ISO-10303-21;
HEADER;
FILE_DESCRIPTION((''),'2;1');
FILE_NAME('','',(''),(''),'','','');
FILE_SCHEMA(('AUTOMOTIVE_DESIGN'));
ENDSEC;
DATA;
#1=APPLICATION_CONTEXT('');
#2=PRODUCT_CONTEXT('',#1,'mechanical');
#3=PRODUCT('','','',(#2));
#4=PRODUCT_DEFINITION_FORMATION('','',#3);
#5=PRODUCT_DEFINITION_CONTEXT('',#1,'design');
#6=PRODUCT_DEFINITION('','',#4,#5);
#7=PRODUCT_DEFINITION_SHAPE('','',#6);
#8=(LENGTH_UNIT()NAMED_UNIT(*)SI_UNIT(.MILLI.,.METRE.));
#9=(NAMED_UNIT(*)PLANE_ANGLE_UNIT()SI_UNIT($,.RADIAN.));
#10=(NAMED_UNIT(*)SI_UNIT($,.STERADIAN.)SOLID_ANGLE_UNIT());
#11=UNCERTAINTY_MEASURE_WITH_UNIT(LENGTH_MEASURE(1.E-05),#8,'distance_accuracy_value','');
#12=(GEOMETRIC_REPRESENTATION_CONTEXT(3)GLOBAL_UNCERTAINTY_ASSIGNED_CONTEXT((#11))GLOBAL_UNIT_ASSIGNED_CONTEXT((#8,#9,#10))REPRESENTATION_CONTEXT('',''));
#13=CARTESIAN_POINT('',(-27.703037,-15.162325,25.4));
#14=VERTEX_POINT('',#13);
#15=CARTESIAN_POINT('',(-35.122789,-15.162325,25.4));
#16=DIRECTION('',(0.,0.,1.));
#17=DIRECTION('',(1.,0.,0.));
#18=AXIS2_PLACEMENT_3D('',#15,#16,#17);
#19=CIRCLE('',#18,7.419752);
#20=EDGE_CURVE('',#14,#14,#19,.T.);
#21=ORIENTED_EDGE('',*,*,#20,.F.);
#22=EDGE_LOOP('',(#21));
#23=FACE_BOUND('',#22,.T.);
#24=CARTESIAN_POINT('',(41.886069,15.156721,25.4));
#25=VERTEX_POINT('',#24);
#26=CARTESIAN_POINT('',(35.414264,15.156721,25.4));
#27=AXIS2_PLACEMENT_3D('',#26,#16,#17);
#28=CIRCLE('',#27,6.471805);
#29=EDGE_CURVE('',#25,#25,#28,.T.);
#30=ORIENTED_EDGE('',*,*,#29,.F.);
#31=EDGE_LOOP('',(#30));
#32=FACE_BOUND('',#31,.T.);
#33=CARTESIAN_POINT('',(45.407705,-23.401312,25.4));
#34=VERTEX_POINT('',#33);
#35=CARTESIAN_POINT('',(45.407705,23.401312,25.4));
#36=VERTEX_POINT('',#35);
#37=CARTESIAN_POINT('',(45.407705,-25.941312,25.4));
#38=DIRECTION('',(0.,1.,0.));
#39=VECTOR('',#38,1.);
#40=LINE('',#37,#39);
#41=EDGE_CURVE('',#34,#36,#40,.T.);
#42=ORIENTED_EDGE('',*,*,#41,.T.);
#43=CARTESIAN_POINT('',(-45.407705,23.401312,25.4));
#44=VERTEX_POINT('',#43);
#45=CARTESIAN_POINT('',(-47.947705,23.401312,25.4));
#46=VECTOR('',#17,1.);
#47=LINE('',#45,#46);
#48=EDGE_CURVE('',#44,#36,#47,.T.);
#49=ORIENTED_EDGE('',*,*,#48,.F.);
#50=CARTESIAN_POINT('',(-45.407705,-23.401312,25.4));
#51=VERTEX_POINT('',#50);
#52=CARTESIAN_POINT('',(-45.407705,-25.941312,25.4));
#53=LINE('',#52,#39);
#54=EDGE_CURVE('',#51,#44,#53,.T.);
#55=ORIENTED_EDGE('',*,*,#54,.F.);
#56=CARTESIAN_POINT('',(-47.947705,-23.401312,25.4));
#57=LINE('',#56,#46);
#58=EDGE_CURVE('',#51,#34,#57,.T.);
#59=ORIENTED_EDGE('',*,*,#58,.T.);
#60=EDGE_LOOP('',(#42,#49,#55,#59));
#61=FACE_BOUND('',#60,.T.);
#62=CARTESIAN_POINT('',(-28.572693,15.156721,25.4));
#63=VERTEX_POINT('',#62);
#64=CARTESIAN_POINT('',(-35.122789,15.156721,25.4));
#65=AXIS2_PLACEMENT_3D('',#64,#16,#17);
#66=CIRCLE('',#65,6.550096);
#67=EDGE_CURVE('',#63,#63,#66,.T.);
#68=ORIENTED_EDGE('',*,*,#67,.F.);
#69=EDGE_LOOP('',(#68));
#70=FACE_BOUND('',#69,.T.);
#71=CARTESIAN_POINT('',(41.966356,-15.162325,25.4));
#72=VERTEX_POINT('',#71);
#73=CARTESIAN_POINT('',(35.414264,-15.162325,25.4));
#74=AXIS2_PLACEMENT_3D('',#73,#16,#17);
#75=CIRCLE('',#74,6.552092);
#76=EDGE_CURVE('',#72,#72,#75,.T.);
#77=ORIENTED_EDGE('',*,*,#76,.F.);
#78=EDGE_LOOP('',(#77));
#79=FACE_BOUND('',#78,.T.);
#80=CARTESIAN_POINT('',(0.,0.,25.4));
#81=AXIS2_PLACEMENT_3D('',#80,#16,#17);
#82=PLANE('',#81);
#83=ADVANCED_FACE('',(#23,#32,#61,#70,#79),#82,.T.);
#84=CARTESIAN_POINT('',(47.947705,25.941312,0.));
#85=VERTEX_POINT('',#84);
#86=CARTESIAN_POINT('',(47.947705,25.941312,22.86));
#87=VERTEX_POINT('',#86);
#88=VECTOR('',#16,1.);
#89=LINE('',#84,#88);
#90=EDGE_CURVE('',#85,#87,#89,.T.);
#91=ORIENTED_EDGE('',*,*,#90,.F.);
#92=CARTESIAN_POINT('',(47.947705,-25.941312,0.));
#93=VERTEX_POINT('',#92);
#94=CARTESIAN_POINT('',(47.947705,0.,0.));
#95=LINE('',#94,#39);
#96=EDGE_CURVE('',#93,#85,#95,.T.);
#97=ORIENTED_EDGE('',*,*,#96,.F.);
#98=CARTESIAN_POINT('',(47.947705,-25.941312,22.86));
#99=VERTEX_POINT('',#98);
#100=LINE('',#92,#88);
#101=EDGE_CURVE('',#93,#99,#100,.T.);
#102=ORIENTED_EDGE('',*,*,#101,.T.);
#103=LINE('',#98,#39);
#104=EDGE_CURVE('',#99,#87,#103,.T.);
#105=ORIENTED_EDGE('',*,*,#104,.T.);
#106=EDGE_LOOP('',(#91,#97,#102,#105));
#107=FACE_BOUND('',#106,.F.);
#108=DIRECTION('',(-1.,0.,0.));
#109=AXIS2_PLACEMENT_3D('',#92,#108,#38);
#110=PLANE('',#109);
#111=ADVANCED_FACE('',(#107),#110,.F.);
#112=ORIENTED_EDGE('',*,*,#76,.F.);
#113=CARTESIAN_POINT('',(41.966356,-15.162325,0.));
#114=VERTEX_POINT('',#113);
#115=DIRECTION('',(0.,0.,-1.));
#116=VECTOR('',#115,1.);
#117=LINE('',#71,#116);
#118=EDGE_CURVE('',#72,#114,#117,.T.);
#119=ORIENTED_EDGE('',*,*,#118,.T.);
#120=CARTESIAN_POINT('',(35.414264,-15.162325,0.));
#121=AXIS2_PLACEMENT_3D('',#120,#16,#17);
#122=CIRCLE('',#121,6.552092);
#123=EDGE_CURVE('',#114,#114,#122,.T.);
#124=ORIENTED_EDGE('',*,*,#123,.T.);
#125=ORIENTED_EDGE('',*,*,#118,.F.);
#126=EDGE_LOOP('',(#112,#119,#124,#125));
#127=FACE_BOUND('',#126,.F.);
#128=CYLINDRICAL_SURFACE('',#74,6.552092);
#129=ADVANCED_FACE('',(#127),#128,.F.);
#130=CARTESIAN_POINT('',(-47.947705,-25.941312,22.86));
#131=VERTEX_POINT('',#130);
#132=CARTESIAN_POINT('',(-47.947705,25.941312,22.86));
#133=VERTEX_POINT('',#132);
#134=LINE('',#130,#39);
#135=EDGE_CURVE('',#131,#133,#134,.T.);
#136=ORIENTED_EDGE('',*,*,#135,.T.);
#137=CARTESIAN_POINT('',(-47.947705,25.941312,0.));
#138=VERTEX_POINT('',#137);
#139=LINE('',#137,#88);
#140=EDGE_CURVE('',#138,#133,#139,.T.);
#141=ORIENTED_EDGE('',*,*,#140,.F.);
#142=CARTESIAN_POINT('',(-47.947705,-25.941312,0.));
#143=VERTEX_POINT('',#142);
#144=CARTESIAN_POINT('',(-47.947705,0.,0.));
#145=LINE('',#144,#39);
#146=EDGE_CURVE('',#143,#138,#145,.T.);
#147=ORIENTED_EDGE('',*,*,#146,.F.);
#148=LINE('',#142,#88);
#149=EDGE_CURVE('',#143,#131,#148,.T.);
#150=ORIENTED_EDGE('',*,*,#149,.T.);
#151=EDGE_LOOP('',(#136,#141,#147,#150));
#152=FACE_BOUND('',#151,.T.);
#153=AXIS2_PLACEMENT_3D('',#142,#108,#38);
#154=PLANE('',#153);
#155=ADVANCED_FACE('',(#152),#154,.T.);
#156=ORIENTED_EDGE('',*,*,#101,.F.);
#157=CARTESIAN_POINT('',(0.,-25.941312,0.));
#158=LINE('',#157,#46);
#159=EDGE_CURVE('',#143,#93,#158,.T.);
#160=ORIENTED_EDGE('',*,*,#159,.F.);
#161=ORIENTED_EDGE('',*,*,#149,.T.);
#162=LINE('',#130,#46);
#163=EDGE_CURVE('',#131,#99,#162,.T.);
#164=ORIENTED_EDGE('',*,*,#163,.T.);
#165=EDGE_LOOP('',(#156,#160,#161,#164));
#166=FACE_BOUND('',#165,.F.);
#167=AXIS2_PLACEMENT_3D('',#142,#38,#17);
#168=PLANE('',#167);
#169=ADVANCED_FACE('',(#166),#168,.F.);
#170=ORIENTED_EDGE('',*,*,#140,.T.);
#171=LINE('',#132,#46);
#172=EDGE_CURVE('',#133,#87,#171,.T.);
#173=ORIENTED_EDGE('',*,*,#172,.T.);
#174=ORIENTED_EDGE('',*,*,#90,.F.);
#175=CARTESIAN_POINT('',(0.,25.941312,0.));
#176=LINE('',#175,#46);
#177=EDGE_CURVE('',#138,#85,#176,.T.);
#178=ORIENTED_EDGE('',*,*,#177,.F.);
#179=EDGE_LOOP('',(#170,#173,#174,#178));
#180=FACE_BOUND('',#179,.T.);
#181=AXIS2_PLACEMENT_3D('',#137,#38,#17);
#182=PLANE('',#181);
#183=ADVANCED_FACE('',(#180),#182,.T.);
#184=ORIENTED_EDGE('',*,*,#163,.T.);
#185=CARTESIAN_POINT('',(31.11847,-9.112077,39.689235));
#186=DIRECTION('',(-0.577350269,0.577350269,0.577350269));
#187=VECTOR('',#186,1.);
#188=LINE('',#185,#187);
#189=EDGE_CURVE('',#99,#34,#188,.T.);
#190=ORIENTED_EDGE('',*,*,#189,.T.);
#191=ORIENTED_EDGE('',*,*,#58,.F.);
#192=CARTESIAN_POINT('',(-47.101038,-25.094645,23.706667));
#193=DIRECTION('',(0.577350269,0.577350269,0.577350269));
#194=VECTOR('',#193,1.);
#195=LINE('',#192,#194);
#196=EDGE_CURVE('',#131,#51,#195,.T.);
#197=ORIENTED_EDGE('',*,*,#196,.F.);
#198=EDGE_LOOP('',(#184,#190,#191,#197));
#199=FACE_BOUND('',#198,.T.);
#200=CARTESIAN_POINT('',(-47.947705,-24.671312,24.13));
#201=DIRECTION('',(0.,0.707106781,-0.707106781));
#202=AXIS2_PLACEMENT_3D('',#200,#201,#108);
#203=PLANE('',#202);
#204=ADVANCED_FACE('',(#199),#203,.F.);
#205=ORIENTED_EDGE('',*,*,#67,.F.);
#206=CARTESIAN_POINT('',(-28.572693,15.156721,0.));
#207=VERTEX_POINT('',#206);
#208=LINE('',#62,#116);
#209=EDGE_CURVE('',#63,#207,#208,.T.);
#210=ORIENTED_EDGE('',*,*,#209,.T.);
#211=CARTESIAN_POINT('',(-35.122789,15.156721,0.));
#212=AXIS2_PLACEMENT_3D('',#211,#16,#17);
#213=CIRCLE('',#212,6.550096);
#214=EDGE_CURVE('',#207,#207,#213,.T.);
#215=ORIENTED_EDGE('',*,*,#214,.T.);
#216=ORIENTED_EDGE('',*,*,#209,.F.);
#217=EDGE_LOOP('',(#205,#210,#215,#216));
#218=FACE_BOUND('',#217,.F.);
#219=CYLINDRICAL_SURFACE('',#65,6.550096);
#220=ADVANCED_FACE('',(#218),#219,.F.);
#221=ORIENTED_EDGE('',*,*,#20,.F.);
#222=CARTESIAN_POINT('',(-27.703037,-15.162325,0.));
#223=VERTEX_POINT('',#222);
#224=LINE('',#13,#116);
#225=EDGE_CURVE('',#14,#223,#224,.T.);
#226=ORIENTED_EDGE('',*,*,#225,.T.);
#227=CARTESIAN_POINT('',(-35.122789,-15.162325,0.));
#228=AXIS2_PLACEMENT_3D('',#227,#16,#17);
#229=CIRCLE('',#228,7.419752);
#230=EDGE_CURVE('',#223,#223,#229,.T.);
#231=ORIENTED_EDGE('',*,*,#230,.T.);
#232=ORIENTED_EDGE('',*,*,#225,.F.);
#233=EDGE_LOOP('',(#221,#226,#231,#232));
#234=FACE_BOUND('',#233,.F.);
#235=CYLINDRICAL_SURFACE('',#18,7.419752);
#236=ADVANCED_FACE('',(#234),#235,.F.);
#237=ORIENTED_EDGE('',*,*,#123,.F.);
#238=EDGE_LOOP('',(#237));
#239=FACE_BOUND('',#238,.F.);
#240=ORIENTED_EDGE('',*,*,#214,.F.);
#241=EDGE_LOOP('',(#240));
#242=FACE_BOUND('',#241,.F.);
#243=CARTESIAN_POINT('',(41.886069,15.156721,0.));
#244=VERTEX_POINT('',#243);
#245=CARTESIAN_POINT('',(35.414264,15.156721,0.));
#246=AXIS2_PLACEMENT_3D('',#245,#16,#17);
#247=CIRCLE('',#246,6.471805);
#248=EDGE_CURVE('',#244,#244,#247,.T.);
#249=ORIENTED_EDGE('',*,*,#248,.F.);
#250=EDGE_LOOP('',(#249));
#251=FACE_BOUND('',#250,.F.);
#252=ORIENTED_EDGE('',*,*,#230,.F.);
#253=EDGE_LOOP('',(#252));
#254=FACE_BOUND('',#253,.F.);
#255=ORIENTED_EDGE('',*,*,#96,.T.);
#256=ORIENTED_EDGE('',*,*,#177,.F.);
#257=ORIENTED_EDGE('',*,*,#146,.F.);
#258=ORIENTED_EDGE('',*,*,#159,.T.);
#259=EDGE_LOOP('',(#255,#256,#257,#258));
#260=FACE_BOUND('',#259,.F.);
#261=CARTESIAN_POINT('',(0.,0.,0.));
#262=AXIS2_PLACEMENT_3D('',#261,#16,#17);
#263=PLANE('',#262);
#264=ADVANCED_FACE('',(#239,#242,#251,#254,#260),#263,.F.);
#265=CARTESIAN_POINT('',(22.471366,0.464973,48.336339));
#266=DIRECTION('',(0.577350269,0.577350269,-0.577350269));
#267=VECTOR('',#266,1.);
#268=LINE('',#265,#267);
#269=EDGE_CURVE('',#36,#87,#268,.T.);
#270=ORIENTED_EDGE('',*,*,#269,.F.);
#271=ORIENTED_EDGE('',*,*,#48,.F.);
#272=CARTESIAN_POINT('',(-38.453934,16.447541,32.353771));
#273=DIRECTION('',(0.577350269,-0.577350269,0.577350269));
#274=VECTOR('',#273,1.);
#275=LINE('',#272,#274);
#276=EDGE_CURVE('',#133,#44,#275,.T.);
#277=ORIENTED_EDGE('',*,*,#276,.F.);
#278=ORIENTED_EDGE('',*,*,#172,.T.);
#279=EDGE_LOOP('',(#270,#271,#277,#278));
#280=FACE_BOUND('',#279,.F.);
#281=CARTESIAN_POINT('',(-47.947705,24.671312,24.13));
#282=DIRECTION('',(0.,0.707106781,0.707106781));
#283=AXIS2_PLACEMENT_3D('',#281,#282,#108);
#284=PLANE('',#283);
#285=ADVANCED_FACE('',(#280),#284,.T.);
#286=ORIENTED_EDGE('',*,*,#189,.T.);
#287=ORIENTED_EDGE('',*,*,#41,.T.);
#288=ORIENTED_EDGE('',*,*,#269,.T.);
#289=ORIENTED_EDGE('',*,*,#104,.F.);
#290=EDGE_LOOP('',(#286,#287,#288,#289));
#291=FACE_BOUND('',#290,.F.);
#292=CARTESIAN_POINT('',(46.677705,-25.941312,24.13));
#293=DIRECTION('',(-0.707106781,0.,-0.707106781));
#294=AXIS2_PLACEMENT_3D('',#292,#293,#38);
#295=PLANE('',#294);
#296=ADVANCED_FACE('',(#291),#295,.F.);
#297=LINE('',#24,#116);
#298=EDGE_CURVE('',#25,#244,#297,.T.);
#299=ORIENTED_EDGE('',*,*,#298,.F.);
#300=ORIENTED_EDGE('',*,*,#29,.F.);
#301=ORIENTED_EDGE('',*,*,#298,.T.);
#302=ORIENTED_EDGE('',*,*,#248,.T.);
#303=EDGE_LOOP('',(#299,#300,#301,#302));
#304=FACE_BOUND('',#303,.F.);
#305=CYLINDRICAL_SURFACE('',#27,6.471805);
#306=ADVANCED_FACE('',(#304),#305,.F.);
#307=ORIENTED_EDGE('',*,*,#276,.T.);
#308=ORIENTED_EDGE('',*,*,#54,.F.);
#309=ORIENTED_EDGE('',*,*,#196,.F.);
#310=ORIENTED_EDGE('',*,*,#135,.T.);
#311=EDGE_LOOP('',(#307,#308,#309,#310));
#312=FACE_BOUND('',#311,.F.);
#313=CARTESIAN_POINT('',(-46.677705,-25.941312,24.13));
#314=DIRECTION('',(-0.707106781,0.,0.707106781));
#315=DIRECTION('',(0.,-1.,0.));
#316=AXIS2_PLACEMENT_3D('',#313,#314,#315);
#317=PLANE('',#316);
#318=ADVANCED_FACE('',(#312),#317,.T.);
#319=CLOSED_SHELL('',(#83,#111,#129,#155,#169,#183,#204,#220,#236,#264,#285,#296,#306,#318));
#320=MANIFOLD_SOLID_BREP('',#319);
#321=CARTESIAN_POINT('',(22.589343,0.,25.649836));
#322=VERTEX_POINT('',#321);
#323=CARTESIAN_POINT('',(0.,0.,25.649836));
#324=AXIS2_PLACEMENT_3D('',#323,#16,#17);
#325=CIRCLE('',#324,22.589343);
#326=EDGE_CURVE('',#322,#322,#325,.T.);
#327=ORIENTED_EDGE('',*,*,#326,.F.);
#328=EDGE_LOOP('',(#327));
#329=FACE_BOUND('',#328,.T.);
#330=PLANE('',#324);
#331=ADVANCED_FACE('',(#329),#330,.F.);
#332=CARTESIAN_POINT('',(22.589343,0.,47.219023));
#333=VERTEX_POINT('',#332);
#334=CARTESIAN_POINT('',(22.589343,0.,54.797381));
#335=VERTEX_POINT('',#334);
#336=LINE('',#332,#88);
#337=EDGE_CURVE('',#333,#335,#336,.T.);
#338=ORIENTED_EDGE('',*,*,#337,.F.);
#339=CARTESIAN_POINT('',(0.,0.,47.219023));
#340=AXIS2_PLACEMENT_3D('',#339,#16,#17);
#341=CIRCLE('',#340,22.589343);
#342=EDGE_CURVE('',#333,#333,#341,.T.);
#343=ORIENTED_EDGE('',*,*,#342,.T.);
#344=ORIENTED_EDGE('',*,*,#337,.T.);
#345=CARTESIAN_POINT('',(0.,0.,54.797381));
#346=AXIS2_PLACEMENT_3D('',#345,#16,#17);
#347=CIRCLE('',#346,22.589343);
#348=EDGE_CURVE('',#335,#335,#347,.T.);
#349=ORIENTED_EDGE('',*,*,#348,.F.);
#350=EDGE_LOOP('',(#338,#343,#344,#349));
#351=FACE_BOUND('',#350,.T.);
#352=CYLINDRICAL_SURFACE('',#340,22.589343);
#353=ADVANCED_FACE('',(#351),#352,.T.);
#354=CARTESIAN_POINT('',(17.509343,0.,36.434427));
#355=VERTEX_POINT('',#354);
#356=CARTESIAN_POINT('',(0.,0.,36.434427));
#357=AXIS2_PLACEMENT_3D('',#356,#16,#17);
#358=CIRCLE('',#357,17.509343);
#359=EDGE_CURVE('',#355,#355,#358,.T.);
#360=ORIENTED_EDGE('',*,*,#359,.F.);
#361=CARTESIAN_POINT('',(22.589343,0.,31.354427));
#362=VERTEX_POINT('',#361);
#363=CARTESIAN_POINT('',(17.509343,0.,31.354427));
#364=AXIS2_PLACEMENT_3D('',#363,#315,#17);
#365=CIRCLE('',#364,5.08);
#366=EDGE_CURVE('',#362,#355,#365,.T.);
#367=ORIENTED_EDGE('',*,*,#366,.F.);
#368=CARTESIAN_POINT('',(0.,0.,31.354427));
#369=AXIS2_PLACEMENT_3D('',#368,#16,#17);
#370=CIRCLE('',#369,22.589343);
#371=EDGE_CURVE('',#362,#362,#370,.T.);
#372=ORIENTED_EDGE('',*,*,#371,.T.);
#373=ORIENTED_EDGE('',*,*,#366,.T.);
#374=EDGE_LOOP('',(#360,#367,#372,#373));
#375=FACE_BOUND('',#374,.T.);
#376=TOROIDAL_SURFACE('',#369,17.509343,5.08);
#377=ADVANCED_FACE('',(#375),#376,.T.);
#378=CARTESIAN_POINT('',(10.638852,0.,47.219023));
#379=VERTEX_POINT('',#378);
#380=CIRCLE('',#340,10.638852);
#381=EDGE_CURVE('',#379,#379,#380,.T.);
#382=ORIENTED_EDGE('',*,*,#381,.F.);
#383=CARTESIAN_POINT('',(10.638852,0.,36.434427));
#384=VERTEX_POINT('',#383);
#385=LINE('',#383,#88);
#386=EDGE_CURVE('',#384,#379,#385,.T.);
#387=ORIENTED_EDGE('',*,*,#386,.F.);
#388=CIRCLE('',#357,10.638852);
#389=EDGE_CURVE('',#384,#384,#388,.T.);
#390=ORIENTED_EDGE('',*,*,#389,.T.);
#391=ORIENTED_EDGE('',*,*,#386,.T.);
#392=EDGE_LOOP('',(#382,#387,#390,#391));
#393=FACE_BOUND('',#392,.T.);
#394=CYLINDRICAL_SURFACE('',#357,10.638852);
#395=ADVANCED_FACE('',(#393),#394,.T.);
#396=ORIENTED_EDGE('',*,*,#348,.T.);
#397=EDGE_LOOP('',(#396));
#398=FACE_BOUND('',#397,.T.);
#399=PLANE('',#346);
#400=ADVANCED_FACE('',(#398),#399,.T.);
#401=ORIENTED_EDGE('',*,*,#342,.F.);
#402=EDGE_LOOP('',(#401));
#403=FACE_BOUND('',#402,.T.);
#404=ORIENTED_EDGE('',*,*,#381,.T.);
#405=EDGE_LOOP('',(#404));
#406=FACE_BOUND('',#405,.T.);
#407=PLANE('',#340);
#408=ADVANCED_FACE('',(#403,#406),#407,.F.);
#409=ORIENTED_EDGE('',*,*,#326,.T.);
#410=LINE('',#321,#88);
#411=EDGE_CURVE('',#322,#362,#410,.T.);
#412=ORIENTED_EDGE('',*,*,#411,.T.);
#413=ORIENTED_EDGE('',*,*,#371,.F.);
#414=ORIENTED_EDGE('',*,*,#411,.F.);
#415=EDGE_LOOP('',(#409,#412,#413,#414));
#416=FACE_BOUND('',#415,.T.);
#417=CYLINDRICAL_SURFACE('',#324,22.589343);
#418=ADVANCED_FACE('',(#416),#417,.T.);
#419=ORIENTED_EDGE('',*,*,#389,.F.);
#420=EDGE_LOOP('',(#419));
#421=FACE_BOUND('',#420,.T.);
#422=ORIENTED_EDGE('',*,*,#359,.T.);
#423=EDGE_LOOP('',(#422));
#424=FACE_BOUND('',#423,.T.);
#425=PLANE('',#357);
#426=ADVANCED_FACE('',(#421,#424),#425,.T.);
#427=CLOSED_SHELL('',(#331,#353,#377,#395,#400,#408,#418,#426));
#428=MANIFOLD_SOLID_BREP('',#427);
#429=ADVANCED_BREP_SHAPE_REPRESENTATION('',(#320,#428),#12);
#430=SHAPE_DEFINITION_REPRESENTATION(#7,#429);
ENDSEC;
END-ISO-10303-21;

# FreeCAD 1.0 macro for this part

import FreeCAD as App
import Part
import Sketcher
from FreeCAD import Vector
Q = App.Units.Quantity


def edges_at(feature, points):
    """Names of the edges that pass closest to the given points."""
    edges = feature.Shape.Edges
    near = lambda p: min(range(len(edges)), key=lambda i: edges[i].distToShape(Part.Vertex(*p))[0])
    return sorted({f"Edge{near(p) + 1}" for p in points})


def add_polygon(sketch, points):
    """Adds a closed chain of lines whose ends are joined by coincident constraints."""
    first, n = sketch.GeometryCount, len(points)
    for a, b in zip(points, points[1:] + points[:1]):
        sketch.addGeometry(Part.LineSegment(App.Vector(*a, 0), App.Vector(*b, 0)), False)
    for i in range(n):
        sketch.addConstraint(Sketcher.Constraint("Coincident", first + i, 2, first + (i + 1) % n, 1))

doc = App.newDocument("Part")
body = doc.addObject("PartDesign::Body", "Body")

sketch1 = doc.addObject("Sketcher::SketchObject", "Sketch")
body.addObject(sketch1)
sketch1.AttachmentSupport = (doc.XY_Plane, [""])
sketch1.MapMode = "FlatFace"
add_polygon(sketch1, [(-48, 26), (-48, -26), (48, -26), (48, 26)])
sketch1.addConstraint(Sketcher.Constraint("Vertical", 0))
sketch1.addConstraint(Sketcher.Constraint("Horizontal", 1))
sketch1.addConstraint(Sketcher.Constraint("Vertical", 2))
sketch1.addConstraint(Sketcher.Constraint("Horizontal", 3))
sketch1.addConstraint(Sketcher.Constraint("Symmetric", 0, 2, 2, 2, -1, 1))
sketch1.addConstraint(Sketcher.Constraint("DistanceX", 1, 1, 1, 2, Q("95.89541 mm")))
sketch1.addConstraint(Sketcher.Constraint("DistanceY", 0, 2, 0, 1, Q("51.882624 mm")))
pad1 = doc.addObject("PartDesign::Pad", "Pad")
body.addObject(pad1)
pad1.Profile = sketch1
pad1.Length = Q("1 in")

sketch2 = doc.addObject("Sketcher::SketchObject", "Sketch001")
body.addObject(sketch2)
sketch2.AttachmentSupport = (doc.XY_Plane, [""])
sketch2.MapMode = "FlatFace"
sketch2.AttachmentOffset = App.Placement(Vector(0, 0, 1 * 25.4), App.Rotation())
sketch2.addGeometry(Part.Circle(Vector(-35, 15, 0), Vector(0, 0, 1), 7), False)
sketch2.addGeometry(Part.Circle(Vector(35, 15, 0), Vector(0, 0, 1), 6), False)
sketch2.addGeometry(Part.Circle(Vector(35, -15, 0), Vector(0, 0, 1), 7), False)
sketch2.addGeometry(Part.Circle(Vector(-35, -15, 0), Vector(0, 0, 1), 7), False)
sketch2.addConstraint(Sketcher.Constraint("Horizontal", 0, 3, 1, 3))
sketch2.addConstraint(Sketcher.Constraint("Horizontal", 2, 3, 3, 3))
sketch2.addConstraint(Sketcher.Constraint("Vertical", 1, 3, 2, 3))
sketch2.addConstraint(Sketcher.Constraint("Vertical", 0, 3, 3, 3))
sketch2.addConstraint(Sketcher.Constraint("Diameter", 1, Q("12.94361 mm")))
sketch2.addConstraint(Sketcher.Constraint("Diameter", 0, Q("13.100192 mm")))
sketch2.addConstraint(Sketcher.Constraint("Diameter", 2, Q("13.104184 mm")))
sketch2.addConstraint(Sketcher.Constraint("Diameter", 3, Q("14.839504 mm")))
sketch2.addConstraint(Sketcher.Constraint("DistanceX", 0, 3, -1, 1, Q("35.122789 mm")))
sketch2.addConstraint(Sketcher.Constraint("DistanceY", -1, 1, 0, 3, Q("15.156721 mm")))
sketch2.addConstraint(Sketcher.Constraint("DistanceX", -1, 1, 1, 3, Q("35.414264 mm")))
sketch2.addConstraint(Sketcher.Constraint("DistanceY", 2, 3, -1, 1, Q("15.162325 mm")))
pocket1 = doc.addObject("PartDesign::Pocket", "Pocket")
body.addObject(pocket1)
pocket1.Profile = sketch2
pocket1.Length = Q("1 in")
doc.recompute()

chamfer = doc.addObject("PartDesign::Chamfer", "Chamfer")
body.addObject(chamfer)
chamfer.Base = (pocket1, edges_at(pocket1, [
    (0, -25.941, 25.4),
    (-47.948, 0, 25.4),
    (47.948, 0, 25.4),
    (0, 25.941, 25.4),
]))
chamfer.Size = Q("0.1 in")
body2 = doc.addObject("PartDesign::Body", "Body001")

sketch3 = doc.addObject("Sketcher::SketchObject", "Sketch002")
body2.addObject(sketch3)
sketch3.AttachmentSupport = (doc.getObject("XZ_Plane001"), [""])
sketch3.MapMode = "FlatFace"
add_polygon(sketch3, [(0, 55), (0, 26), (23, 26), (23, 36), (11, 36), (11, 47), (23, 47), (23, 55)])
sketch3.addConstraint(Sketcher.Constraint("Vertical", 0))
sketch3.addConstraint(Sketcher.Constraint("Horizontal", 1))
sketch3.addConstraint(Sketcher.Constraint("Vertical", 2))
sketch3.addConstraint(Sketcher.Constraint("Horizontal", 3))
sketch3.addConstraint(Sketcher.Constraint("Vertical", 4))
sketch3.addConstraint(Sketcher.Constraint("Horizontal", 5))
sketch3.addConstraint(Sketcher.Constraint("Vertical", 6))
sketch3.addConstraint(Sketcher.Constraint("Horizontal", 7))
sketch3.addConstraint(Sketcher.Constraint("PointOnObject", 0, 2, -2))
sketch3.addConstraint(Sketcher.Constraint("Vertical", 2, 2, 5, 2))
sketch3.addConstraint(Sketcher.Constraint("DistanceX", 3, 2, 3, 1, Q("11.950491 mm")))
sketch3.addConstraint(Sketcher.Constraint("DistanceY", 2, 1, 2, 2, Q("10.784591 mm")))
sketch3.addConstraint(Sketcher.Constraint("DistanceY", 6, 1, 6, 2, Q("7.578358 mm")))
sketch3.addConstraint(Sketcher.Constraint("DistanceX", 1, 1, 1, 2, Q("22.589343 mm")))
sketch3.addConstraint(Sketcher.Constraint("DistanceY", 0, 2, 0, 1, Q("29.147545 mm")))
sketch3.addConstraint(Sketcher.Constraint("DistanceY", -1, 1, 6, 2, Q("54.797381 mm")))
revolution = doc.addObject("PartDesign::Revolution", "Revolution")
body2.addObject(revolution)
revolution.Profile = sketch3
revolution.ReferenceAxis = (sketch3, ["V_Axis"])
revolution.Angle = 360
doc.recompute()

fillet = doc.addObject("PartDesign::Fillet", "Fillet")
body2.addObject(fillet)
fillet.Base = (revolution, edges_at(revolution, [(-22.589, 0, 36.434)]))
fillet.Radius = Q("0.2 in")

doc.recompute()
